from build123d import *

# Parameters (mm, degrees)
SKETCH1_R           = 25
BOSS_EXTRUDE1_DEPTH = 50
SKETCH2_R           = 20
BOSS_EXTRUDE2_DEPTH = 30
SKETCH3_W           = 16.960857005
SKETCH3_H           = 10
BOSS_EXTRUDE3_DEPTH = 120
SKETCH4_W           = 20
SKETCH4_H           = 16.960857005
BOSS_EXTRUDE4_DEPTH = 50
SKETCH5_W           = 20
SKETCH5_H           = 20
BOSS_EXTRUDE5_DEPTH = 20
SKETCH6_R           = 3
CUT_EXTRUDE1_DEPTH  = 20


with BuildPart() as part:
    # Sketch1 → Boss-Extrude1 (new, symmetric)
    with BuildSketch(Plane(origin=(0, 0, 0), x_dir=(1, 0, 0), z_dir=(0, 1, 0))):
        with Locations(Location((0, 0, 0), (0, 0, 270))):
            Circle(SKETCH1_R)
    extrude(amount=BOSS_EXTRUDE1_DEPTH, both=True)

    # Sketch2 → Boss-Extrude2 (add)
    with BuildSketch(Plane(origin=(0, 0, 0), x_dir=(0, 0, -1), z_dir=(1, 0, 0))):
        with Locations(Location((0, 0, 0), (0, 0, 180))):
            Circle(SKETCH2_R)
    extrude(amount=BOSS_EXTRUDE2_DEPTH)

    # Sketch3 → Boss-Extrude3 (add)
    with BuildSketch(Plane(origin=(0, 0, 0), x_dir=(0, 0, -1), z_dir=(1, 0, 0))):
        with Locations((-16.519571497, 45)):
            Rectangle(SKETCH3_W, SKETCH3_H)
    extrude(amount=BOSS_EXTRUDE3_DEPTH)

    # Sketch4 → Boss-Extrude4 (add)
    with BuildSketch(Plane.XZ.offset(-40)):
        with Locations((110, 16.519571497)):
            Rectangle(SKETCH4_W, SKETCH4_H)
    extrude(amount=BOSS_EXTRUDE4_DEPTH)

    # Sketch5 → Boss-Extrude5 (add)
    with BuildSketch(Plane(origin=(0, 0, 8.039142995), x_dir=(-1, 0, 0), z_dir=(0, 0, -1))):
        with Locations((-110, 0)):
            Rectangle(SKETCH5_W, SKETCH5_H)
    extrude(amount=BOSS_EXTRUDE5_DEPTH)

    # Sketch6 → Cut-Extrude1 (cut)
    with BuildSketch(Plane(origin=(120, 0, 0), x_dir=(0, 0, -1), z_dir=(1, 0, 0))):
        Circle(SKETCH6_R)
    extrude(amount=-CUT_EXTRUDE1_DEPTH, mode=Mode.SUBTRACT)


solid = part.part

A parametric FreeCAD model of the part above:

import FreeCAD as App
import Part
import Sketcher
from FreeCAD import Vector
Q = App.Units.Quantity

doc = App.newDocument("Part")
body = doc.addObject("PartDesign::Body", "Body")

sketch1 = body.newObject("Sketcher::SketchObject", "Sketch")
sketch1.AttachmentSupport = (doc.getObject("XZ_Plane"), [""])
sketch1.MapMode = "FlatFace"
sketch1.addGeometry(Part.Circle(Vector(0, 0, 0), Vector(0, 0, 1), 25), False)
sketch1.addConstraint([
    Sketcher.Constraint("Coincident", 0, 3, -1, 1),
    Sketcher.Constraint("Diameter", 0, Q("50 mm")),
])
pad1 = body.newObject("PartDesign::Pad", "Pad")
pad1.Profile = sketch1
pad1.Length = 100
pad1.Midplane = True

sketch2 = body.newObject("Sketcher::SketchObject", "Sketch001")
sketch2.AttachmentSupport = (doc.getObject("YZ_Plane"), [""])
sketch2.MapMode = "FlatFace"
sketch2.addGeometry(Part.Circle(Vector(0, 0, 0), Vector(0, 0, 1), 20), False)
sketch2.addConstraint([
    Sketcher.Constraint("Coincident", 0, 3, -1, 1),
    Sketcher.Constraint("Diameter", 0, Q("40 mm")),
])
pad2 = body.newObject("PartDesign::Pad", "Pad001")
pad2.Profile = sketch2
pad2.Length = 30

sketch3 = body.newObject("Sketcher::SketchObject", "Sketch002")
sketch3.AttachmentSupport = (doc.getObject("YZ_Plane"), [""])
sketch3.MapMode = "FlatFace"
sketch3.addGeometry([
    Part.LineSegment(Vector(50, 25, 0), Vector(40, 25, 0)),
    Part.LineSegment(Vector(40, 25, 0), Vector(40, 8, 0)),
    Part.LineSegment(Vector(40, 8, 0), Vector(50, 8, 0)),
    Part.LineSegment(Vector(50, 8, 0), Vector(50, 25, 0)),
], False)
sketch3.addConstraint([
    Sketcher.Constraint("Coincident", 0, 2, 1, 1),
    Sketcher.Constraint("Coincident", 1, 2, 2, 1),
    Sketcher.Constraint("Coincident", 2, 2, 3, 1),
    Sketcher.Constraint("Coincident", 3, 2, 0, 1),
    Sketcher.Constraint("Horizontal", 0),
    Sketcher.Constraint("Vertical", 1),
    Sketcher.Constraint("Horizontal", 2),
    Sketcher.Constraint("Vertical", 3),
    Sketcher.Constraint("DistanceX", 0, 2, 0, 1, Q("10 mm")),
    Sketcher.Constraint("DistanceX", -1, 1, 0, 2, Q("40 mm")),
    Sketcher.Constraint("DistanceY", -1, 1, 0, 2, Q("25 mm")),
    Sketcher.Constraint("DistanceY", 1, 2, 1, 1, Q("16.960857 mm")),
])
pad3 = body.newObject("PartDesign::Pad", "Pad002")
pad3.Profile = sketch3
pad3.Length = 120

sketch4 = body.newObject("Sketcher::SketchObject", "Sketch003")
sketch4.AttachmentSupport = (doc.getObject("XZ_Plane"), [""])
sketch4.MapMode = "FlatFace"
sketch4.AttachmentOffset = App.Placement(Vector(0, 0, -40), App.Rotation())
sketch4.addGeometry([
    Part.LineSegment(Vector(100, 25, 0), Vector(100, 8, 0)),
    Part.LineSegment(Vector(100, 8, 0), Vector(120, 8, 0)),
    Part.LineSegment(Vector(120, 8, 0), Vector(120, 25, 0)),
    Part.LineSegment(Vector(120, 25, 0), Vector(100, 25, 0)),
], False)
sketch4.addConstraint([
    Sketcher.Constraint("Coincident", 0, 2, 1, 1),
    Sketcher.Constraint("Coincident", 1, 2, 2, 1),
    Sketcher.Constraint("Coincident", 2, 2, 3, 1),
    Sketcher.Constraint("Coincident", 3, 2, 0, 1),
    Sketcher.Constraint("Vertical", 0),
    Sketcher.Constraint("Horizontal", 1),
    Sketcher.Constraint("Vertical", 2),
    Sketcher.Constraint("Horizontal", 3),
    Sketcher.Constraint("DistanceX", 1, 1, 1, 2, Q("20 mm")),
    Sketcher.Constraint("DistanceX", -1, 1, 0, 2, Q("100 mm")),
    Sketcher.Constraint("DistanceY", -1, 1, 2, 2, Q("25 mm")),
    Sketcher.Constraint("DistanceY", 0, 2, 0, 1, Q("16.960857 mm")),
])
pad4 = body.newObject("PartDesign::Pad", "Pad003")
pad4.Profile = sketch4
pad4.Length = 50

sketch5 = body.newObject("Sketcher::SketchObject", "Sketch004")
sketch5.AttachmentSupport = (doc.getObject("XY_Plane"), [""])
sketch5.MapMode = "FlatFace"
sketch5.AttachmentOffset = App.Placement(Vector(0, 0, 8.039143), App.Rotation())
sketch5.addGeometry([
    Part.LineSegment(Vector(120, 10, 0), Vector(120, -10, 0)),
    Part.LineSegment(Vector(120, -10, 0), Vector(100, -10, 0)),
    Part.LineSegment(Vector(100, -10, 0), Vector(100, 10, 0)),
    Part.LineSegment(Vector(100, 10, 0), Vector(120, 10, 0)),
], False)
sketch5.addConstraint([
    Sketcher.Constraint("Coincident", 0, 2, 1, 1),
    Sketcher.Constraint("Coincident", 1, 2, 2, 1),
    Sketcher.Constraint("Coincident", 2, 2, 3, 1),
    Sketcher.Constraint("Coincident", 3, 2, 0, 1),
    Sketcher.Constraint("Vertical", 0),
    Sketcher.Constraint("Horizontal", 1),
    Sketcher.Constraint("Vertical", 2),
    Sketcher.Constraint("Horizontal", 3),
    Sketcher.Constraint("Equal", 3, 0),
    Sketcher.Constraint("DistanceX", 1, 2, 1, 1, Q("20 mm")),
    Sketcher.Constraint("DistanceX", -1, 1, 0, 2, Q("120 mm")),
    Sketcher.Constraint("DistanceY", 0, 2, -1, 1, Q("10 mm")),
])
pad5 = body.newObject("PartDesign::Pad", "Pad004")
pad5.Profile = sketch5
pad5.Length = 20
pad5.Reversed = True

sketch6 = body.newObject("Sketcher::SketchObject", "Sketch005")
sketch6.AttachmentSupport = (doc.getObject("YZ_Plane"), [""])
sketch6.MapMode = "FlatFace"
sketch6.AttachmentOffset = App.Placement(Vector(0, 0, 120), App.Rotation())
sketch6.addGeometry(Part.Circle(Vector(0, 0, 0), Vector(0, 0, 1), 3), False)
sketch6.addConstraint([
    Sketcher.Constraint("Coincident", 0, 3, -1, 1),
    Sketcher.Constraint("Diameter", 0, Q("6 mm")),
])
pocket1 = body.newObject("PartDesign::Pocket", "Pocket")
pocket1.Profile = sketch6
pocket1.Length = 20

doc.recompute()
